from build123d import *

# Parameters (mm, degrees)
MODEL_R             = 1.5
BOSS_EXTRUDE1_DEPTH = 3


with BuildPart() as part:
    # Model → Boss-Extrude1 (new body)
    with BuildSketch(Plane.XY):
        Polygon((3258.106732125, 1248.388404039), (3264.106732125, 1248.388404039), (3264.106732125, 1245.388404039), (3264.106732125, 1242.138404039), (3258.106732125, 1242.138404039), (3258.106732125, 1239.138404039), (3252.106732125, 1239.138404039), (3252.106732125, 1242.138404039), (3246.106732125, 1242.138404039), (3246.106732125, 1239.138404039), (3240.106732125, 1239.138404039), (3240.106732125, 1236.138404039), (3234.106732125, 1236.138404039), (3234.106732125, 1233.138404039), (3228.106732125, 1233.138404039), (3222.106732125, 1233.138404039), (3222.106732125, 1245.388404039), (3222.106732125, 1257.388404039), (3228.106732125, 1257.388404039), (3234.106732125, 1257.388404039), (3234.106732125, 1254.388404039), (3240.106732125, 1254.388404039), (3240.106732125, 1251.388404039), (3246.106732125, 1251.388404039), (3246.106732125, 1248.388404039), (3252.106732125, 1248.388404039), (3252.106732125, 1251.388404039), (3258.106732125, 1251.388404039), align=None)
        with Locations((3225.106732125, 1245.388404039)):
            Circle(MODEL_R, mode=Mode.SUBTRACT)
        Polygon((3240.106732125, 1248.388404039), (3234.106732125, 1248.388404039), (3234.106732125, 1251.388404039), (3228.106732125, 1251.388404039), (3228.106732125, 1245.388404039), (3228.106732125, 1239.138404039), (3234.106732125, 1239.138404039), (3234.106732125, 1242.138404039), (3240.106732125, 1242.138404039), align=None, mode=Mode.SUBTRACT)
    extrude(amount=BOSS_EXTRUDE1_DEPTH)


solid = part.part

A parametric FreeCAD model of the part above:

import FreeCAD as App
import Part
import Sketcher
Q = App.Units.Quantity


def add_polygon(sketch, points):
    """Adds a closed chain of lines whose ends are joined by coincident constraints."""
    first, n = sketch.GeometryCount, len(points)
    for a, b in zip(points, points[1:] + points[:1]):
        sketch.addGeometry(Part.LineSegment(App.Vector(*a, 0), App.Vector(*b, 0)), False)
    for i in range(n):
        sketch.addConstraint(Sketcher.Constraint("Coincident", first + i, 2, first + (i + 1) % n, 1))

doc = App.newDocument("Part")
body = doc.addObject("PartDesign::Body", "Body")

# Sketch on XY plane
sketch1 = body.newObject("Sketcher::SketchObject", "Sketch")
sketch1.AttachmentSupport = (doc.getObject("XY_Plane"), [""])
sketch1.MapMode = "FlatFace"
add_polygon(sketch1, [(3264.1, 1248.4), (3258.1, 1248.4), (3258.1, 1251.4), (3252.1, 1251.4), (3252.1, 1248.4), (3246.1, 1248.4), (3246.1, 1251.4), (3240.1, 1251.4), (3240.1, 1254.4), (3234.1, 1254.4), (3234.1, 1257.4), (3222.1, 1257.4), (3222.1, 1233.1), (3234.1, 1233.1), (3234.1, 1236.1), (3240.1, 1236.1), (3240.1, 1239.1), (3246.1, 1239.1), (3246.1, 1242.1), (3252.1, 1242.1), (3252.1, 1239.1), (3258.1, 1239.1), (3258.1, 1242.1), (3264.1, 1242.1)])  # lines 0-23
add_polygon(sketch1, [(3240.1, 1248.4), (3240.1, 1242.1), (3234.1, 1242.1), (3234.1, 1239.1), (3228.1, 1239.1), (3228.1, 1251.4), (3234.1, 1251.4), (3234.1, 1248.4)])  # lines 24-31
sketch1.addGeometry(Part.Circle(App.Vector(3225.1, 1245.4, 0), App.Vector(0, 0, 1), 1.5), False)  # 32
sketch1.addConstraint([
    Sketcher.Constraint("Horizontal", 0),
    Sketcher.Constraint("Vertical", 1),
    Sketcher.Constraint("Horizontal", 2),
    Sketcher.Constraint("Vertical", 3),
    Sketcher.Constraint("Horizontal", 4),
    Sketcher.Constraint("Vertical", 5),
    Sketcher.Constraint("Horizontal", 6),
    Sketcher.Constraint("Vertical", 7),
    Sketcher.Constraint("Horizontal", 8),
    Sketcher.Constraint("Vertical", 9),
    Sketcher.Constraint("Horizontal", 10),
    Sketcher.Constraint("Vertical", 11),
    Sketcher.Constraint("Horizontal", 12),
    Sketcher.Constraint("Vertical", 13),
    Sketcher.Constraint("Horizontal", 14),
    Sketcher.Constraint("Vertical", 15),
    Sketcher.Constraint("Horizontal", 16),
    Sketcher.Constraint("Vertical", 17),
    Sketcher.Constraint("Horizontal", 18),
    Sketcher.Constraint("Vertical", 19),
    Sketcher.Constraint("Horizontal", 20),
    Sketcher.Constraint("Vertical", 21),
    Sketcher.Constraint("Horizontal", 22),
    Sketcher.Constraint("Vertical", 23),
    Sketcher.Constraint("Vertical", 24),
    Sketcher.Constraint("Horizontal", 25),
    Sketcher.Constraint("Vertical", 26),
    Sketcher.Constraint("Horizontal", 27),
    Sketcher.Constraint("Vertical", 28),
    Sketcher.Constraint("Horizontal", 29),
    Sketcher.Constraint("Vertical", 30),
    Sketcher.Constraint("Horizontal", 31),
    Sketcher.Constraint("Horizontal", 0, 2, 3, 2),
    Sketcher.Constraint("Horizontal", 2, 2, 5, 2),
    Sketcher.Constraint("Horizontal", 16, 2, 19, 2),
    Sketcher.Constraint("Horizontal", 18, 2, 21, 2),
    Sketcher.Constraint("Horizontal", 22, 2, 24, 2),
    Sketcher.Constraint("Horizontal", 20, 2, 26, 2),
    Sketcher.Constraint("Horizontal", 6, 2, 28, 2),
    Sketcher.Constraint("Horizontal", 23, 2, 30, 2),
    Sketcher.Constraint("Vertical", 9, 2, 12, 2),
    Sketcher.Constraint("Vertical", 7, 2, 14, 2),
    Sketcher.Constraint("Vertical", 5, 2, 16, 2),
    Sketcher.Constraint("Vertical", 3, 2, 18, 2),
    Sketcher.Constraint("Vertical", 1, 2, 20, 2),
    Sketcher.Constraint("Vertical", 15, 2, 24, 2),
    Sketcher.Constraint("Vertical", 13, 2, 25, 2),
    Sketcher.Constraint("Vertical", 26, 2, 29, 2),
    Sketcher.Constraint("Equal", 0, 2),
    Sketcher.Constraint("Equal", 2, 4),
    Sketcher.Constraint("Equal", 4, 6),
    Sketcher.Constraint("Equal", 6, 8),
    Sketcher.Constraint("Equal", 25, 27),
    Sketcher.Constraint("Equal", 5, 7),
    Sketcher.Constraint("Equal", 7, 9),
    Sketcher.Constraint("Equal", 9, 13),
    Sketcher.Constraint("Equal", 13, 15),
    Sketcher.Constraint("Equal", 15, 17),
    Sketcher.Constraint("Diameter", 32, Q("3 mm")),
    Sketcher.Constraint("DistanceX", 0, 2, 0, 1, Q("6 mm")),
    Sketcher.Constraint("DistanceX", 10, 2, 10, 1, Q("12 mm")),
    Sketcher.Constraint("DistanceY", 1, 1, 1, 2, Q("3 mm")),
    Sketcher.Constraint("DistanceX", 32, 3, 0, 2, Q("33 mm")),
    Sketcher.Constraint("DistanceY", 32, 3, 0, 2, Q("3 mm")),
    Sketcher.Constraint("DistanceY", 11, 2, 11, 1, Q("24.25 mm")),
    Sketcher.Constraint("DistanceX", -1, 1, 32, 3, Q("3225.106732 mm")),
    Sketcher.Constraint("DistanceY", -1, 1, 32, 3, Q("1245.388404 mm")),
])
pad1 = body.newObject("PartDesign::Pad", "Pad")
pad1.Profile = sketch1
pad1.Length = 3

doc.recompute()
